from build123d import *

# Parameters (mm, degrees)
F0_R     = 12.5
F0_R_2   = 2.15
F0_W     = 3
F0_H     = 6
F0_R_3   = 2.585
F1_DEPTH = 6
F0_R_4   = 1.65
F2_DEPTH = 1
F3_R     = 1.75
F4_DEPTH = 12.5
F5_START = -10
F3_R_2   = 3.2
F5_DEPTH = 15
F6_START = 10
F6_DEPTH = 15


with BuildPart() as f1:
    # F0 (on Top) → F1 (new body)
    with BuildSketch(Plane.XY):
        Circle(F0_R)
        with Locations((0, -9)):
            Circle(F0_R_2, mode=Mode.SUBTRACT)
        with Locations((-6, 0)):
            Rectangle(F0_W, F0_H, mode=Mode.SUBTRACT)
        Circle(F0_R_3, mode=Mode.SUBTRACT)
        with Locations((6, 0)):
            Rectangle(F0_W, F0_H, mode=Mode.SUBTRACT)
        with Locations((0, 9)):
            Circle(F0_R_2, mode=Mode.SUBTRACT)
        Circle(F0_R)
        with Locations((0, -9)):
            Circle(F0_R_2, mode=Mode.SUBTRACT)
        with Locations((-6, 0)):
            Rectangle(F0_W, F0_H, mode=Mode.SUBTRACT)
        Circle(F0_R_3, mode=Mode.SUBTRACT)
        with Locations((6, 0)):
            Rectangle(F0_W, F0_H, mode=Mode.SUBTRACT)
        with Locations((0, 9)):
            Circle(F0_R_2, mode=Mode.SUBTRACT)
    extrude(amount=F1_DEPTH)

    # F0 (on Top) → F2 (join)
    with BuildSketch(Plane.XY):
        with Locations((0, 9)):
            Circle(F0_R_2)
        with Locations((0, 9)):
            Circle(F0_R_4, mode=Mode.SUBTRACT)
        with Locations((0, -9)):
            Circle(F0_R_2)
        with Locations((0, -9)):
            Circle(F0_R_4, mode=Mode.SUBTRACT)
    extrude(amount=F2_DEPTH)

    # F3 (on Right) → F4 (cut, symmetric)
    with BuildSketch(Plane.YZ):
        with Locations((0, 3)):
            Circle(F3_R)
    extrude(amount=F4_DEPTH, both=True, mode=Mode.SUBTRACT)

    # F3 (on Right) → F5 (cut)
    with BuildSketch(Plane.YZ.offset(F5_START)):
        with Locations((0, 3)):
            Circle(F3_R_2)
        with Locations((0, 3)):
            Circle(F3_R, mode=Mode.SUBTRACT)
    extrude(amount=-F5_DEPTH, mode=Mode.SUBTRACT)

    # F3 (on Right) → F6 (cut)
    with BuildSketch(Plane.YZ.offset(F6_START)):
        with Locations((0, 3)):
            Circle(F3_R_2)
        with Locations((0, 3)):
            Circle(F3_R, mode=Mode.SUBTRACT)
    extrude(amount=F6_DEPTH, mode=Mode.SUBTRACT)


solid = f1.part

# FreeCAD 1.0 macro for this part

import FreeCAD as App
import Part
import Sketcher
from FreeCAD import Vector
Q = App.Units.Quantity

doc = App.newDocument("Part")
body = doc.addObject("PartDesign::Body", "Body")

sketch1 = body.newObject("Sketcher::SketchObject", "Sketch")
sketch1.AttachmentSupport = (doc.getObject("XY_Plane"), [""])
sketch1.MapMode = "FlatFace"
sketch1.addGeometry([
    Part.Circle(Vector(0, 0, 0), Vector(0, 0, 1), 12.5),
    Part.LineSegment(Vector(-4.5, -3, 0), Vector(-7.5, -3, 0)),
    Part.LineSegment(Vector(-7.5, -3, 0), Vector(-7.5, 3, 0)),
    Part.LineSegment(Vector(-7.5, 3, 0), Vector(-4.5, 3, 0)),
    Part.LineSegment(Vector(-4.5, 3, 0), Vector(-4.5, -3, 0)),
    Part.Circle(Vector(0, -9, 0), Vector(0, 0, 1), 2.1),
    Part.Circle(Vector(0, 0, 0), Vector(0, 0, 1), 2.6),
    Part.LineSegment(Vector(7.5, -3, 0), Vector(4.5, -3, 0)),
    Part.LineSegment(Vector(4.5, -3, 0), Vector(4.5, 3, 0)),
    Part.LineSegment(Vector(4.5, 3, 0), Vector(7.5, 3, 0)),
    Part.LineSegment(Vector(7.5, 3, 0), Vector(7.5, -3, 0)),
    Part.Circle(Vector(0, 9, 0), Vector(0, 0, 1), 2.1),
], False)
sketch1.addConstraint([
    Sketcher.Constraint("Coincident", 1, 2, 2, 1),
    Sketcher.Constraint("Coincident", 2, 2, 3, 1),
    Sketcher.Constraint("Coincident", 3, 2, 4, 1),
    Sketcher.Constraint("Coincident", 4, 2, 1, 1),
    Sketcher.Constraint("Coincident", 7, 2, 8, 1),
    Sketcher.Constraint("Coincident", 8, 2, 9, 1),
    Sketcher.Constraint("Coincident", 9, 2, 10, 1),
    Sketcher.Constraint("Coincident", 10, 2, 7, 1),
    Sketcher.Constraint("Horizontal", 1),
    Sketcher.Constraint("Vertical", 2),
    Sketcher.Constraint("Horizontal", 3),
    Sketcher.Constraint("Vertical", 4),
    Sketcher.Constraint("Horizontal", 7),
    Sketcher.Constraint("Vertical", 8),
    Sketcher.Constraint("Horizontal", 9),
    Sketcher.Constraint("Vertical", 10),
    Sketcher.Constraint("Coincident", 0, 3, -1, 1),
    Sketcher.Constraint("Coincident", 6, 3, -1, 1),
    Sketcher.Constraint("Equal", 5, 11),
    Sketcher.Constraint("Symmetric", 5, 3, 11, 3, -1, 1),
    Sketcher.Constraint("Symmetric", 3, 2, 7, 2, -1, 1),
    Sketcher.Constraint("Symmetric", 1, 2, 9, 2, -1, 1),
    Sketcher.Constraint("PointOnObject", 5, 3, -2),
    Sketcher.Constraint("Horizontal", 4, 2, 7, 2),
    Sketcher.Constraint("Diameter", 0, Q("25 mm")),
    Sketcher.Constraint("Diameter", 5, Q("4.3 mm")),
    Sketcher.Constraint("Diameter", 6, Q("5.17 mm")),
    Sketcher.Constraint("DistanceX", 1, 2, 1, 1, Q("3 mm")),
    Sketcher.Constraint("DistanceY", 2, 1, 2, 2, Q("6 mm")),
    Sketcher.Constraint("DistanceY", 5, 3, -1, 1, Q("9 mm")),
    Sketcher.Constraint("DistanceX", 4, 2, 7, 2, Q("9 mm")),
])
pad1 = body.newObject("PartDesign::Pad", "Pad")
pad1.Profile = sketch1
pad1.Length = 6

sketch2 = body.newObject("Sketcher::SketchObject", "Sketch001")
sketch2.AttachmentSupport = (doc.getObject("XY_Plane"), [""])
sketch2.MapMode = "FlatFace"
sketch2.addGeometry([
    Part.Circle(Vector(0, 9, 0), Vector(0, 0, 1), 2.1),
    Part.Circle(Vector(0, 9, 0), Vector(0, 0, 1), 1.6),
    Part.Circle(Vector(0, -9, 0), Vector(0, 0, 1), 2.1),
    Part.Circle(Vector(0, -9, 0), Vector(0, 0, 1), 1.6),
], False)
sketch2.addConstraint([
    Sketcher.Constraint("Coincident", 1, 3, 0, 3),
    Sketcher.Constraint("Coincident", 3, 3, 2, 3),
    Sketcher.Constraint("Equal", 0, 2),
    Sketcher.Constraint("Equal", 1, 3),
    Sketcher.Constraint("Symmetric", 0, 3, 2, 3, -1, 1),
    Sketcher.Constraint("PointOnObject", 0, 3, -2),
    Sketcher.Constraint("Diameter", 0, Q("4.3 mm")),
    Sketcher.Constraint("Diameter", 1, Q("3.3 mm")),
    Sketcher.Constraint("DistanceY", -1, 1, 0, 3, Q("9 mm")),
])
pad2 = body.newObject("PartDesign::Pad", "Pad001")
pad2.Profile = sketch2
pad2.Length = 1

sketch3 = body.newObject("Sketcher::SketchObject", "Sketch002")
sketch3.AttachmentSupport = (doc.getObject("YZ_Plane"), [""])
sketch3.MapMode = "FlatFace"
sketch3.addGeometry(Part.Circle(Vector(0, 3, 0), Vector(0, 0, 1), 1.8), False)
sketch3.addConstraint([
    Sketcher.Constraint("PointOnObject", 0, 3, -2),
    Sketcher.Constraint("Diameter", 0, Q("3.5 mm")),
    Sketcher.Constraint("DistanceY", -1, 1, 0, 3, Q("3 mm")),
])
pocket1 = body.newObject("PartDesign::Pocket", "Pocket")
pocket1.Profile = sketch3
pocket1.Length = 25
pocket1.Midplane = True

sketch4 = body.newObject("Sketcher::SketchObject", "Sketch003")
sketch4.AttachmentSupport = (doc.getObject("YZ_Plane"), [""])
sketch4.MapMode = "FlatFace"
sketch4.AttachmentOffset = App.Placement(Vector(0, 0, -10), App.Rotation())
sketch4.addGeometry([
    Part.Circle(Vector(0, 3, 0), Vector(0, 0, 1), 3.2),
    Part.Circle(Vector(0, 3, 0), Vector(0, 0, 1), 1.8),
], False)
sketch4.addConstraint([
    Sketcher.Constraint("Coincident", 1, 3, 0, 3),
    Sketcher.Constraint("PointOnObject", 0, 3, -2),
    Sketcher.Constraint("Diameter", 0, Q("6.4 mm")),
    Sketcher.Constraint("Diameter", 1, Q("3.5 mm")),
    Sketcher.Constraint("DistanceY", -1, 1, 0, 3, Q("3 mm")),
])
pocket2 = body.newObject("PartDesign::Pocket", "Pocket001")
pocket2.Profile = sketch4
pocket2.Length = 15

sketch5 = body.newObject("Sketcher::SketchObject", "Sketch004")
sketch5.AttachmentSupport = (doc.getObject("YZ_Plane"), [""])
sketch5.MapMode = "FlatFace"
sketch5.AttachmentOffset = App.Placement(Vector(0, 0, 10), App.Rotation())
sketch5.addGeometry([
    Part.Circle(Vector(0, 3, 0), Vector(0, 0, 1), 3.2),
    Part.Circle(Vector(0, 3, 0), Vector(0, 0, 1), 1.8),
], False)
sketch5.addConstraint([
    Sketcher.Constraint("Coincident", 1, 3, 0, 3),
    Sketcher.Constraint("PointOnObject", 0, 3, -2),
    Sketcher.Constraint("Diameter", 0, Q("6.4 mm")),
    Sketcher.Constraint("Diameter", 1, Q("3.5 mm")),
    Sketcher.Constraint("DistanceY", -1, 1, 0, 3, Q("3 mm")),
])
pocket3 = body.newObject("PartDesign::Pocket", "Pocket002")
pocket3.Profile = sketch5
pocket3.Length = 15
pocket3.Reversed = True

doc.recompute()
